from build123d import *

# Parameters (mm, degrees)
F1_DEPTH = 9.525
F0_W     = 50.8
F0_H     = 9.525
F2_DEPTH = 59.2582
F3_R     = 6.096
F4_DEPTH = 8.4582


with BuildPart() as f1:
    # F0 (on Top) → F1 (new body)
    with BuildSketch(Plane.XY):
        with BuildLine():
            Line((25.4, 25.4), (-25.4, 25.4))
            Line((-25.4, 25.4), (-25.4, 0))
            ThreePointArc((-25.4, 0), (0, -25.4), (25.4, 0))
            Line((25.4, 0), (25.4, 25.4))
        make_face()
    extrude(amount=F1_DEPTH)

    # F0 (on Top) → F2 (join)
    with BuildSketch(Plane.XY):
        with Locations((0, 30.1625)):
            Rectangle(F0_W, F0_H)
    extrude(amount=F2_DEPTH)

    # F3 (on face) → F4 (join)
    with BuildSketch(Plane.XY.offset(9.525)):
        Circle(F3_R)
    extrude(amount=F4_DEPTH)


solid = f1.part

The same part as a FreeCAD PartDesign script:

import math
import FreeCAD as App
import Part
import Sketcher
from FreeCAD import Vector
Q = App.Units.Quantity


def add_polygon(sketch, points):
    """Adds a closed chain of lines whose ends are joined by coincident constraints."""
    first, n = sketch.GeometryCount, len(points)
    for a, b in zip(points, points[1:] + points[:1]):
        sketch.addGeometry(Part.LineSegment(App.Vector(*a, 0), App.Vector(*b, 0)), False)
    for i in range(n):
        sketch.addConstraint(Sketcher.Constraint("Coincident", first + i, 2, first + (i + 1) % n, 1))

doc = App.newDocument("Part")
params = doc.addObject("Spreadsheet::Sheet", "Params")
for row, (alias, value) in enumerate([
    ("sketch1_radius", "1 in"),
    ("sketch1_height", "1 in"),
    ("pad1_length", "0.375 in"),
    ("sketch2_width", "2 in"),
    ("sketch2_height", "0.375 in"),
    ("pad2_length", "2.333 in"),
    ("sketch3_diameter", "0.48 in"),
    ("pad3_length", "0.333 in"),
], start=1):
    params.set(f"A{row}", alias)
    params.set(f"B{row}", "=" + value)
    params.setAlias(f"B{row}", alias)

body = doc.addObject("PartDesign::Body", "Body")

# Sketch on XY plane
sketch1 = body.newObject("Sketcher::SketchObject", "Sketch")
sketch1.AttachmentSupport = (doc.getObject("XY_Plane"), [""])
sketch1.MapMode = "FlatFace"
sketch1.addGeometry([
    Part.LineSegment(Vector(25.4, 25.4, 0), Vector(-25.4, 25.4, 0)),
    Part.LineSegment(Vector(-25.4, 25.4, 0), Vector(-25.4, 0, 0)),
    Part.ArcOfCircle(Part.Circle(Vector(0, 0, 0), Vector(0, 0, 1), 25.4), math.radians(180), math.radians(360)),
    Part.LineSegment(Vector(25.4, 0, 0), Vector(25.4, 25.4, 0)),
], False)
sketch1.addConstraint([
    Sketcher.Constraint("Coincident", 0, 2, 1, 1),
    Sketcher.Constraint("Tangent", 1, 2, 2, 1),
    Sketcher.Constraint("Tangent", 2, 2, 3, 1),
    Sketcher.Constraint("Coincident", 3, 2, 0, 1),
    Sketcher.Constraint("Horizontal", 0),
    Sketcher.Constraint("Vertical", 1),
    Sketcher.Constraint("Vertical", 3),
    Sketcher.Constraint("Coincident", 2, 3, -1, 1),
    Sketcher.Constraint("Radius", 2, Q("1 in")),
    Sketcher.Constraint("DistanceY", 1, 2, 1, 1, Q("1 in")),
])
sketch1.setExpression("Constraints[8]", "Params.sketch1_radius")
sketch1.setExpression("Constraints[9]", "Params.sketch1_height")
pad1 = body.newObject("PartDesign::Pad", "Pad")
pad1.Profile = sketch1
pad1.setExpression("Length", "Params.pad1_length")

# Sketch on XY plane
sketch2 = body.newObject("Sketcher::SketchObject", "Sketch001")
sketch2.AttachmentSupport = (doc.getObject("XY_Plane"), [""])
sketch2.MapMode = "FlatFace"
add_polygon(sketch2, [(-25.4, 34.925), (-25.4, 25.4), (25.4, 25.4), (25.4, 34.925)])  # lines 0-3
sketch2.addConstraint([
    Sketcher.Constraint("Vertical", 0),
    Sketcher.Constraint("Horizontal", 1),
    Sketcher.Constraint("Vertical", 2),
    Sketcher.Constraint("Horizontal", 3),
    Sketcher.Constraint("DistanceX", 1, 1, 1, 2, Q("2 in")),
    Sketcher.Constraint("DistanceX", 0, 2, -1, 1, Q("1 in")),
    Sketcher.Constraint("DistanceY", -1, 1, 0, 2, Q("1 in")),
    Sketcher.Constraint("DistanceY", 0, 2, 0, 1, Q("0.375 in")),
])
sketch2.setExpression("Constraints[8]", "Params.sketch2_width")
sketch2.setExpression("Constraints[11]", "Params.sketch2_height")
pad2 = body.newObject("PartDesign::Pad", "Pad001")
pad2.Profile = sketch2
pad2.setExpression("Length", "Params.pad2_length")

# Sketch on XY plane
sketch3 = body.newObject("Sketcher::SketchObject", "Sketch002")
sketch3.AttachmentSupport = (doc.getObject("XY_Plane"), [""])
sketch3.MapMode = "FlatFace"
sketch3.AttachmentOffset = App.Placement(Vector(0, 0, 0.375 * 25.4), App.Rotation())
sketch3.addGeometry(Part.Circle(Vector(0, 0, 0), Vector(0, 0, 1), 6.096), False)
sketch3.addConstraint([
    Sketcher.Constraint("Coincident", 0, 3, -1, 1),
    Sketcher.Constraint("Diameter", 0, Q("0.48 in")),
])
sketch3.setExpression("Constraints[1]", "Params.sketch3_diameter")
pad3 = body.newObject("PartDesign::Pad", "Pad002")
pad3.Profile = sketch3
pad3.setExpression("Length", "Params.pad3_length")

doc.recompute()
